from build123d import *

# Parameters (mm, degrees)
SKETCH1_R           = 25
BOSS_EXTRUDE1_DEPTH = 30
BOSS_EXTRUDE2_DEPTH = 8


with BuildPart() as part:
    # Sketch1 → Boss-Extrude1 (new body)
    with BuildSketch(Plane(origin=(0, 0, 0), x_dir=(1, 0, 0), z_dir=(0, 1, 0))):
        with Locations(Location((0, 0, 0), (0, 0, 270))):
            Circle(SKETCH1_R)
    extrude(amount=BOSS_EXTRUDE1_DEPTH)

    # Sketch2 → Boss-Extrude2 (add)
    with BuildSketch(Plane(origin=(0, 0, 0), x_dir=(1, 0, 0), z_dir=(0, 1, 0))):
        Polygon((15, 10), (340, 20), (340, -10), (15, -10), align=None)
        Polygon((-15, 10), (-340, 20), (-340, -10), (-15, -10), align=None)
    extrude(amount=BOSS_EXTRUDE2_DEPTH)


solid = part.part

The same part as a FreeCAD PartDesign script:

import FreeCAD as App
import Part
import Sketcher
from FreeCAD import Vector

doc = App.newDocument("Part")
body = doc.addObject("PartDesign::Body", "Body")

# Sketch on XZ plane
sketch1 = body.newObject("Sketcher::SketchObject", "Sketch")
sketch1.AttachmentSupport = (doc.getObject("XZ_Plane"), [""])
sketch1.MapMode = "FlatFace"
sketch1.addGeometry(Part.Circle(Vector(0, 0, 0), Vector(0, 0, 1), 25), False)
sketch1.addConstraint([
    Sketcher.Constraint("Coincident", 0, 3, -1, 1),
    Sketcher.Constraint("Diameter", 0, 50.0),
])
pad1 = body.newObject("PartDesign::Pad", "Pad")
pad1.Profile = sketch1
pad1.Length = 30
pad1.Reversed = True

# Sketch on XZ plane
sketch2 = body.newObject("Sketcher::SketchObject", "Sketch001")
sketch2.AttachmentSupport = (doc.getObject("XZ_Plane"), [""])
sketch2.MapMode = "FlatFace"
sketch2.addGeometry([
    Part.LineSegment(Vector(340, -20, 0), Vector(15, -10, 0)),  # 0
    Part.LineSegment(Vector(15, -10, 0), Vector(15, 10, 0)),  # 1
    Part.LineSegment(Vector(15, 10, 0), Vector(340, 10, 0)),  # 2
    Part.LineSegment(Vector(340, 10, 0), Vector(340, -20, 0)),  # 3
    Part.LineSegment(Vector(-15, -10, 0), Vector(-340, -20, 0)),  # 4
    Part.LineSegment(Vector(-340, -20, 0), Vector(-340, 10, 0)),  # 5
    Part.LineSegment(Vector(-340, 10, 0), Vector(-15, 10, 0)),  # 6
    Part.LineSegment(Vector(-15, 10, 0), Vector(-15, -10, 0)),  # 7
], False)
sketch2.addConstraint([
    Sketcher.Constraint("Coincident", 0, 2, 1, 1),
    Sketcher.Constraint("Coincident", 1, 2, 2, 1),
    Sketcher.Constraint("Coincident", 2, 2, 3, 1),
    Sketcher.Constraint("Coincident", 3, 2, 0, 1),
    Sketcher.Constraint("Coincident", 4, 2, 5, 1),
    Sketcher.Constraint("Coincident", 5, 2, 6, 1),
    Sketcher.Constraint("Coincident", 6, 2, 7, 1),
    Sketcher.Constraint("Coincident", 7, 2, 4, 1),
    Sketcher.Constraint("Vertical", 1),
    Sketcher.Constraint("Horizontal", 2),
    Sketcher.Constraint("Vertical", 3),
    Sketcher.Constraint("Vertical", 5),
    Sketcher.Constraint("Horizontal", 6),
    Sketcher.Constraint("Vertical", 7),
    Sketcher.Constraint("Symmetric", 0, 2, 6, 2, -1, 1),
    Sketcher.Constraint("Symmetric", 3, 2, 4, 2, -2),
    Sketcher.Constraint("Horizontal", 2, 2, 5, 2),
    Sketcher.Constraint("Horizontal", 0, 2, 7, 2),
    Sketcher.Constraint("DistanceX", 2, 1, 2, 2, 325.0),
    Sketcher.Constraint("DistanceY", 1, 1, 1, 2, 20.0),
    Sketcher.Constraint("DistanceY", 3, 2, 3, 1, 30.0),
    Sketcher.Constraint("DistanceX", -1, 1, 0, 2, 15.0),
])
pad2 = body.newObject("PartDesign::Pad", "Pad001")
pad2.Profile = sketch2
pad2.Length = 8
pad2.Reversed = True

doc.recompute()
